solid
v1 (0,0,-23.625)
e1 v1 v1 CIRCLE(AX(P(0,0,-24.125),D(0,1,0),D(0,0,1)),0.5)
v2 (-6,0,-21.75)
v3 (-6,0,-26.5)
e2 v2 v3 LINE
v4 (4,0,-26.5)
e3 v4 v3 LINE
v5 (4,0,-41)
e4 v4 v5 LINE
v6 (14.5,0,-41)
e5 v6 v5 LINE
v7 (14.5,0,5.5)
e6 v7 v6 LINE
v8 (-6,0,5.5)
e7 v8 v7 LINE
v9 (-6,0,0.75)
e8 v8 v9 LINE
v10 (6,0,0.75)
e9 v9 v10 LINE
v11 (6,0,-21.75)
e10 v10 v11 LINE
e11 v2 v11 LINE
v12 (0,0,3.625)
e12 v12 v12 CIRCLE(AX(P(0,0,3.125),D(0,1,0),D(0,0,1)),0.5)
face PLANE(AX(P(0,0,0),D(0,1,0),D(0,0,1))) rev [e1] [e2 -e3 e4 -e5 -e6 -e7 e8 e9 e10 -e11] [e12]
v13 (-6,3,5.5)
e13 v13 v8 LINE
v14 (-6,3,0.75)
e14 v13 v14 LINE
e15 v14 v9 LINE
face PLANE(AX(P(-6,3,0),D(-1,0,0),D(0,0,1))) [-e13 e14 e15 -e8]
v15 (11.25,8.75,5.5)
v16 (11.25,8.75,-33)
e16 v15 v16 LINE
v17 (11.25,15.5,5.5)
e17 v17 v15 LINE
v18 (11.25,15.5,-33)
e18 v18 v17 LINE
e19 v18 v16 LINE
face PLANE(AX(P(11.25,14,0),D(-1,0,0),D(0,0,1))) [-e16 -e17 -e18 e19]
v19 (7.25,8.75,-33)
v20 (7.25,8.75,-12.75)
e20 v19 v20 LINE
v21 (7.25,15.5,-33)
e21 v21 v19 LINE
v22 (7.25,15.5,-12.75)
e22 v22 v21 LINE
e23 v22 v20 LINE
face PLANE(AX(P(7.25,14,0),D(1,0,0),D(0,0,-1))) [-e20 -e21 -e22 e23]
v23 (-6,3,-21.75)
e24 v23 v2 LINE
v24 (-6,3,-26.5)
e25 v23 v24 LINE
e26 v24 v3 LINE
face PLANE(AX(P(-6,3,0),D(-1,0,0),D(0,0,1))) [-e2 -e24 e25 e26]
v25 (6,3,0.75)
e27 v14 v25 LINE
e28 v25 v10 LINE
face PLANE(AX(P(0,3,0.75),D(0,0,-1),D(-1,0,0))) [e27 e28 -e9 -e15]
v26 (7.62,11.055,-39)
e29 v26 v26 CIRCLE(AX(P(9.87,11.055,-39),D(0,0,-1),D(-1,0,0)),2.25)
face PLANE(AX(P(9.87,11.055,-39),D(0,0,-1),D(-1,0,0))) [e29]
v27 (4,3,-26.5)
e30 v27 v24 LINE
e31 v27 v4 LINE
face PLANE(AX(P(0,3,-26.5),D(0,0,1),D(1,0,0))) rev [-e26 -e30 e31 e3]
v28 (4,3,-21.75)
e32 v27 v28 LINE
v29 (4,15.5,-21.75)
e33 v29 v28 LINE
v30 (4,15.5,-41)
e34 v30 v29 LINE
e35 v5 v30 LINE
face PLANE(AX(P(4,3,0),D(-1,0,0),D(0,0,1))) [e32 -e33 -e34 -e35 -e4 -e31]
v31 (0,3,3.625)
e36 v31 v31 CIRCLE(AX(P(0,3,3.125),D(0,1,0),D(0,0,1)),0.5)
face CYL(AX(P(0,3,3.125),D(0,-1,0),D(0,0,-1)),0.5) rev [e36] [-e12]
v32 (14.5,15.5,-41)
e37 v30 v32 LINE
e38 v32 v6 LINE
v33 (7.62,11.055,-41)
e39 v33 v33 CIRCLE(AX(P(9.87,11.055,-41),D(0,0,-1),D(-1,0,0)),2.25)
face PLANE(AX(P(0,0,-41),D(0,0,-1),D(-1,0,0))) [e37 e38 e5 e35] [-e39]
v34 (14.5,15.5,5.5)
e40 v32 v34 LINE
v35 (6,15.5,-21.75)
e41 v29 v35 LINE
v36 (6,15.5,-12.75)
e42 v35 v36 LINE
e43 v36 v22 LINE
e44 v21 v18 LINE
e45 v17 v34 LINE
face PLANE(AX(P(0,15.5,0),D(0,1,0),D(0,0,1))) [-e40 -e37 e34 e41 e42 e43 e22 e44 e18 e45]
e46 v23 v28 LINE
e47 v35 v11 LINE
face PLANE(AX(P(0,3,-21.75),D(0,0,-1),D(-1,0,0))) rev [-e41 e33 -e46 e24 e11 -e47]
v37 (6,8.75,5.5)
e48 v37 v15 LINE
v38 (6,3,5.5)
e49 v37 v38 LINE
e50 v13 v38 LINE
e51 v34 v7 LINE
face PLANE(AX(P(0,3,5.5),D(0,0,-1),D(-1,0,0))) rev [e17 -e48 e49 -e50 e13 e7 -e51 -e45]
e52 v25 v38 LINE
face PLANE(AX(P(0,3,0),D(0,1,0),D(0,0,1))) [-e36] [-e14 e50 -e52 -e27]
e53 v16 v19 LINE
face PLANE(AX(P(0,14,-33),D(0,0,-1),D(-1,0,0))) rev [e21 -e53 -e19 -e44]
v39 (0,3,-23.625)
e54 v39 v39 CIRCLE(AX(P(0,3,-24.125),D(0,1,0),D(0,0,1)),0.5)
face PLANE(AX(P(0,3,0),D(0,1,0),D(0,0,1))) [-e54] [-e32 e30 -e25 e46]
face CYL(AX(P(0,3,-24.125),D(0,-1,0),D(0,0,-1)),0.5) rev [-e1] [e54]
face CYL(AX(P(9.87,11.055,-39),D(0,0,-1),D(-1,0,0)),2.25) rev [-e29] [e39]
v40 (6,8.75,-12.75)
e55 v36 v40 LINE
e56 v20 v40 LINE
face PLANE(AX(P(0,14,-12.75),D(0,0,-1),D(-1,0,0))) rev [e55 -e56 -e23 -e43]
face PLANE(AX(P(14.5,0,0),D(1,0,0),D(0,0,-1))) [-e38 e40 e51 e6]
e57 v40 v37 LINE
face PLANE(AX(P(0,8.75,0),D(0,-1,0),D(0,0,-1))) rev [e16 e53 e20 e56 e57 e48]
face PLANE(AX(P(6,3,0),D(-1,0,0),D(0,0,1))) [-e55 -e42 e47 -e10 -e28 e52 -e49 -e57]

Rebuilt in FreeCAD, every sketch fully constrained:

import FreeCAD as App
import Part
import Sketcher
from FreeCAD import Vector
Q = App.Units.Quantity


def add_polygon(sketch, points):
    """Adds a closed chain of lines whose ends are joined by coincident constraints."""
    first, n = sketch.GeometryCount, len(points)
    for a, b in zip(points, points[1:] + points[:1]):
        sketch.addGeometry(Part.LineSegment(App.Vector(*a, 0), App.Vector(*b, 0)), False)
    for i in range(n):
        sketch.addConstraint(Sketcher.Constraint("Coincident", first + i, 2, first + (i + 1) % n, 1))

doc = App.newDocument("Part")
params = doc.addObject("Spreadsheet::Sheet", "Params")
for row, (alias, value) in enumerate([
    ("sketch1_diameter", "1 mm"),
    ("sketch1_width", "10 mm"),
    ("sketch1_width2", "12 mm"),
    ("sketch1_width3", "19.5 mm"),
    ("sketch1_height", "44.5 mm"),
    ("pad1_length", "3 mm"),
    ("sketch2_width", "2 mm"),
    ("sketch2_width2", "4 mm"),
    ("sketch2_height", "9 mm"),
    ("sketch2_width3", "9.5 mm"),
    ("sketch2_height2", "44.5 mm"),
    ("pad2_length", "11 mm"),
    ("sketch3_width", "4 mm"),
    ("sketch3_height", "38.5 mm"),
    ("sketch3_width2", "1.25 mm"),
    ("sketch3_height2", "20.25 mm"),
    ("pad3_length", "5.75 mm"),
    ("sketch4_diameter", "4 mm"),
    ("sketch4_diameter2", "2 mm"),
    ("pocket1_length", "4 mm"),
    ("sketch5_diameter", "4 mm"),
    ("sketch5_diameter2", "2 mm"),
    ("pad4_length", "4 mm"),
    ("sketch6_width", "2 mm"),
    ("sketch6_width2", "4 mm"),
    ("sketch6_height", "9 mm"),
    ("sketch6_width3", "9.5 mm"),
    ("sketch6_height2", "38.5 mm"),
    ("pad5_length", "1.5 mm"),
    ("sketch7_width", "15.5 mm"),
    ("sketch7_height", "44.5 mm"),
    ("pad6_length", "1 mm"),
    ("sketch8_width", "10.5 mm"),
    ("sketch8_height", "15.5 mm"),
    ("pad7_length", "2 mm"),
    ("sketch9_diameter", "4.5 mm"),
    ("pocket2_length", "2 mm"),
], start=1):
    params.set(f"A{row}", alias)
    params.set(f"B{row}", "=" + value)
    params.setAlias(f"B{row}", alias)

body = doc.addObject("PartDesign::Body", "Body")

# Sketch on XZ plane
sketch1 = doc.addObject("Sketcher::SketchObject", "Sketch")
body.addObject(sketch1)
sketch1.AttachmentSupport = (doc.XZ_Plane, [""])
sketch1.MapMode = "FlatFace"
add_polygon(sketch1, [(-6, 0.8), (-6, 5.5), (13.5, 5.5), (13.5, -39), (4, -39), (4, -26.5), (-6, -26.5), (-6, -21.8), (6, -21.8), (6, 0.8)])  # lines 0-9
sketch1.addGeometry(Part.Circle(Vector(0, 3.1, 0), Vector(0, 0, 1), 0.5), False)  # 10
sketch1.addGeometry(Part.Circle(Vector(0, -24.1, 0), Vector(0, 0, 1), 0.5), False)  # 11
sketch1.addConstraint(Sketcher.Constraint("Vertical", 0))
sketch1.addConstraint(Sketcher.Constraint("Horizontal", 1))
sketch1.addConstraint(Sketcher.Constraint("Vertical", 2))
sketch1.addConstraint(Sketcher.Constraint("Horizontal", 3))
sketch1.addConstraint(Sketcher.Constraint("Vertical", 4))
sketch1.addConstraint(Sketcher.Constraint("Horizontal", 5))
sketch1.addConstraint(Sketcher.Constraint("Vertical", 6))
sketch1.addConstraint(Sketcher.Constraint("Horizontal", 7))
sketch1.addConstraint(Sketcher.Constraint("Vertical", 8))
sketch1.addConstraint(Sketcher.Constraint("Horizontal", 9))
sketch1.addConstraint(Sketcher.Constraint("Equal", 10, 11))
sketch1.addConstraint(Sketcher.Constraint("PointOnObject", 10, 3, -2))
sketch1.addConstraint(Sketcher.Constraint("PointOnObject", 11, 3, -2))
sketch1.addConstraint(Sketcher.Constraint("Vertical", 0, 2, 5, 2))
sketch1.addConstraint(Sketcher.Constraint("Equal", 0, 6))
sketch1.addConstraint(Sketcher.Constraint("Diameter", 10, Q("1 mm")))
sketch1.addConstraint(Sketcher.Constraint("DistanceX", 5, 2, 5, 1, Q("10 mm")))
sketch1.addConstraint(Sketcher.Constraint("DistanceX", 7, 1, 7, 2, Q("12 mm")))
sketch1.addConstraint(Sketcher.Constraint("DistanceX", 1, 1, 1, 2, Q("19.5 mm")))
sketch1.addConstraint(Sketcher.Constraint("DistanceY", 2, 2, 2, 1, Q("44.5 mm")))
sketch1.addConstraint(Sketcher.Constraint("DistanceY", 4, 1, 4, 2, Q("12.5 mm")))
sketch1.addConstraint(Sketcher.Constraint("DistanceY", 8, 1, 8, 2, Q("22.5 mm")))
sketch1.addConstraint(Sketcher.Constraint("DistanceX", 0, 2, -1, 1, Q("6 mm")))
sketch1.addConstraint(Sketcher.Constraint("DistanceY", 2, 2, -1, 1, Q("39 mm")))
sketch1.addConstraint(Sketcher.Constraint("DistanceY", 11, 3, 10, 3, Q("27.25 mm")))
sketch1.addConstraint(Sketcher.Constraint("DistanceY", -1, 1, 10, 3, Q("3.125 mm")))
sketch1.setExpression("Constraints[25]", "Params.sketch1_diameter")
sketch1.setExpression("Constraints[26]", "Params.sketch1_width")
sketch1.setExpression("Constraints[27]", "Params.sketch1_width2")
sketch1.setExpression("Constraints[28]", "Params.sketch1_width3")
sketch1.setExpression("Constraints[29]", "Params.sketch1_height")
pad1 = doc.addObject("PartDesign::Pad", "Pad")
body.addObject(pad1)
pad1.Profile = sketch1
pad1.setExpression("Length", "Params.pad1_length")
pad1.Reversed = True

# Sketch on XZ plane
sketch2 = doc.addObject("Sketcher::SketchObject", "Sketch001")
body.addObject(sketch2)
sketch2.AttachmentSupport = (doc.XZ_Plane, [""])
sketch2.MapMode = "FlatFace"
sketch2.AttachmentOffset = App.Placement(Vector(0, 0, -3), App.Rotation())
add_polygon(sketch2, [(11.2, 5.5), (13.5, 5.5), (13.5, -39), (4, -39), (4, -21.8), (6, -21.8), (6, -12.8), (7.2, -12.8), (7.2, -33), (11.2, -33)])  # lines 0-9
sketch2.addConstraint(Sketcher.Constraint("Horizontal", 0))
sketch2.addConstraint(Sketcher.Constraint("Vertical", 1))
sketch2.addConstraint(Sketcher.Constraint("Horizontal", 2))
sketch2.addConstraint(Sketcher.Constraint("Vertical", 3))
sketch2.addConstraint(Sketcher.Constraint("Horizontal", 4))
sketch2.addConstraint(Sketcher.Constraint("Vertical", 5))
sketch2.addConstraint(Sketcher.Constraint("Horizontal", 6))
sketch2.addConstraint(Sketcher.Constraint("Vertical", 7))
sketch2.addConstraint(Sketcher.Constraint("Horizontal", 8))
sketch2.addConstraint(Sketcher.Constraint("Vertical", 9))
sketch2.addConstraint(Sketcher.Constraint("DistanceX", 4, 1, 4, 2, Q("2 mm")))
sketch2.addConstraint(Sketcher.Constraint("DistanceX", 8, 1, 8, 2, Q("4 mm")))
sketch2.addConstraint(Sketcher.Constraint("DistanceY", 5, 1, 5, 2, Q("9 mm")))
sketch2.addConstraint(Sketcher.Constraint("DistanceX", 2, 2, 2, 1, Q("9.5 mm")))
sketch2.addConstraint(Sketcher.Constraint("DistanceY", 1, 2, 1, 1, Q("44.5 mm")))
sketch2.addConstraint(Sketcher.Constraint("DistanceY", 9, 1, 9, 2, Q("38.5 mm")))
sketch2.addConstraint(Sketcher.Constraint("DistanceY", 1, 2, -1, 1, Q("39 mm")))
sketch2.addConstraint(Sketcher.Constraint("DistanceX", -1, 1, 2, 2, Q("4 mm")))
sketch2.addConstraint(Sketcher.Constraint("DistanceX", 0, 1, 0, 2, Q("2.25 mm")))
sketch2.addConstraint(Sketcher.Constraint("DistanceY", 3, 1, 3, 2, Q("17.25 mm")))
sketch2.setExpression("Constraints[20]", "Params.sketch2_width")
sketch2.setExpression("Constraints[21]", "Params.sketch2_width2")
sketch2.setExpression("Constraints[22]", "Params.sketch2_height")
sketch2.setExpression("Constraints[23]", "Params.sketch2_width3")
sketch2.setExpression("Constraints[24]", "Params.sketch2_height2")
pad2 = doc.addObject("PartDesign::Pad", "Pad001")
body.addObject(pad2)
pad2.Profile = sketch2
pad2.setExpression("Length", "Params.pad2_length")
pad2.Reversed = True

# Sketch on XZ plane
sketch3 = doc.addObject("Sketcher::SketchObject", "Sketch002")
body.addObject(sketch3)
sketch3.AttachmentSupport = (doc.XZ_Plane, [""])
sketch3.MapMode = "FlatFace"
sketch3.AttachmentOffset = App.Placement(Vector(0, 0, -3), App.Rotation())
add_polygon(sketch3, [(11.2, 5.5), (11.2, -33), (7.2, -33), (7.2, -12.8), (6, -12.8), (6, 5.5)])  # lines 0-5
sketch3.addConstraint(Sketcher.Constraint("Vertical", 0))
sketch3.addConstraint(Sketcher.Constraint("Horizontal", 1))
sketch3.addConstraint(Sketcher.Constraint("Vertical", 2))
sketch3.addConstraint(Sketcher.Constraint("Horizontal", 3))
sketch3.addConstraint(Sketcher.Constraint("Vertical", 4))
sketch3.addConstraint(Sketcher.Constraint("Horizontal", 5))
sketch3.addConstraint(Sketcher.Constraint("DistanceX", 1, 2, 1, 1, Q("4 mm")))
sketch3.addConstraint(Sketcher.Constraint("DistanceY", 0, 2, 0, 1, Q("38.5 mm")))
sketch3.addConstraint(Sketcher.Constraint("DistanceY", 0, 2, -1, 1, Q("33 mm")))
sketch3.addConstraint(Sketcher.Constraint("DistanceX", -1, 1, 3, 2, Q("6 mm")))
sketch3.addConstraint(Sketcher.Constraint("DistanceX", 3, 2, 3, 1, Q("1.25 mm")))
sketch3.addConstraint(Sketcher.Constraint("DistanceY", 2, 1, 2, 2, Q("20.25 mm")))
sketch3.setExpression("Constraints[12]", "Params.sketch3_width")
sketch3.setExpression("Constraints[13]", "Params.sketch3_height")
sketch3.setExpression("Constraints[16]", "Params.sketch3_width2")
sketch3.setExpression("Constraints[17]", "Params.sketch3_height2")
pad3 = doc.addObject("PartDesign::Pad", "Pad002")
body.addObject(pad3)
pad3.Profile = sketch3
pad3.setExpression("Length", "Params.pad3_length")
pad3.Reversed = True

# Sketch on XY plane
sketch4 = doc.addObject("Sketcher::SketchObject", "Sketch003")
body.addObject(sketch4)
sketch4.AttachmentSupport = (doc.XY_Plane, [""])
sketch4.MapMode = "FlatFace"
sketch4.AttachmentOffset = App.Placement(Vector(0, 0, -39), App.Rotation())
sketch4.addGeometry(Part.Circle(Vector(9.9, 11.1, 0), Vector(0, 0, 1), 2), False)
sketch4.addGeometry(Part.Circle(Vector(9.9, 5.6, 0), Vector(0, 0, 1), 1), False)
sketch4.addGeometry(Part.Circle(Vector(9.9, 2.1, 0), Vector(0, 0, 1), 1), False)
sketch4.addConstraint(Sketcher.Constraint("Equal", 1, 2))
sketch4.addConstraint(Sketcher.Constraint("Vertical", 0, 3, 1, 3))
sketch4.addConstraint(Sketcher.Constraint("Vertical", 1, 3, 2, 3))
sketch4.addConstraint(Sketcher.Constraint("Diameter", 0, Q("4 mm")))
sketch4.addConstraint(Sketcher.Constraint("Diameter", 1, Q("2 mm")))
sketch4.addConstraint(Sketcher.Constraint("DistanceY", 2, 3, 0, 3, Q("9 mm")))
sketch4.addConstraint(Sketcher.Constraint("DistanceY", 1, 3, 0, 3, Q("5.5 mm")))
sketch4.addConstraint(Sketcher.Constraint("DistanceX", -1, 1, 0, 3, Q("9.87 mm")))
sketch4.addConstraint(Sketcher.Constraint("DistanceY", -1, 1, 0, 3, Q("11.055 mm")))
sketch4.setExpression("Constraints[3]", "Params.sketch4_diameter")
sketch4.setExpression("Constraints[4]", "Params.sketch4_diameter2")
pocket1 = doc.addObject("PartDesign::Pocket", "Pocket")
body.addObject(pocket1)
pocket1.Profile = sketch4
pocket1.setExpression("Length", "Params.pocket1_length")
pocket1.Reversed = True

# Sketch on XY plane
sketch5 = doc.addObject("Sketcher::SketchObject", "Sketch004")
body.addObject(sketch5)
sketch5.AttachmentSupport = (doc.XY_Plane, [""])
sketch5.MapMode = "FlatFace"
sketch5.AttachmentOffset = App.Placement(Vector(0, 0, -39), App.Rotation())
sketch5.addGeometry(Part.Circle(Vector(9.9, 11.1, 0), Vector(0, 0, 1), 2), False)
sketch5.addGeometry(Part.Circle(Vector(9.9, 5.6, 0), Vector(0, 0, 1), 1), False)
sketch5.addGeometry(Part.Circle(Vector(9.9, 2.1, 0), Vector(0, 0, 1), 1), False)
sketch5.addConstraint(Sketcher.Constraint("Equal", 1, 2))
sketch5.addConstraint(Sketcher.Constraint("Vertical", 0, 3, 1, 3))
sketch5.addConstraint(Sketcher.Constraint("Vertical", 1, 3, 2, 3))
sketch5.addConstraint(Sketcher.Constraint("Diameter", 0, Q("4 mm")))
sketch5.addConstraint(Sketcher.Constraint("Diameter", 1, Q("2 mm")))
sketch5.addConstraint(Sketcher.Constraint("DistanceY", 2, 3, 0, 3, Q("9 mm")))
sketch5.addConstraint(Sketcher.Constraint("DistanceY", 1, 3, 0, 3, Q("5.5 mm")))
sketch5.addConstraint(Sketcher.Constraint("DistanceX", -1, 1, 0, 3, Q("9.87 mm")))
sketch5.addConstraint(Sketcher.Constraint("DistanceY", -1, 1, 0, 3, Q("11.055 mm")))
sketch5.setExpression("Constraints[3]", "Params.sketch5_diameter")
sketch5.setExpression("Constraints[4]", "Params.sketch5_diameter2")
pad4 = doc.addObject("PartDesign::Pad", "Pad003")
body.addObject(pad4)
pad4.Profile = sketch5
pad4.setExpression("Length", "Params.pad4_length")

# Sketch on XZ plane
sketch6 = doc.addObject("Sketcher::SketchObject", "Sketch005")
body.addObject(sketch6)
sketch6.AttachmentSupport = (doc.XZ_Plane, [""])
sketch6.MapMode = "FlatFace"
sketch6.AttachmentOffset = App.Placement(Vector(0, 0, -14), App.Rotation())
add_polygon(sketch6, [(4, -39), (4, -21.8), (6, -21.8), (6, -12.8), (7.2, -12.8), (7.2, -33), (11.2, -33), (11.2, 5.5), (13.5, 5.5), (13.5, -39)])  # lines 0-9
sketch6.addConstraint(Sketcher.Constraint("Vertical", 0))
sketch6.addConstraint(Sketcher.Constraint("Horizontal", 1))
sketch6.addConstraint(Sketcher.Constraint("Vertical", 2))
sketch6.addConstraint(Sketcher.Constraint("Horizontal", 3))
sketch6.addConstraint(Sketcher.Constraint("Vertical", 4))
sketch6.addConstraint(Sketcher.Constraint("Horizontal", 5))
sketch6.addConstraint(Sketcher.Constraint("Vertical", 6))
sketch6.addConstraint(Sketcher.Constraint("Horizontal", 7))
sketch6.addConstraint(Sketcher.Constraint("Vertical", 8))
sketch6.addConstraint(Sketcher.Constraint("Horizontal", 9))
sketch6.addConstraint(Sketcher.Constraint("DistanceX", 1, 1, 1, 2, Q("2 mm")))
sketch6.addConstraint(Sketcher.Constraint("DistanceX", 5, 1, 5, 2, Q("4 mm")))
sketch6.addConstraint(Sketcher.Constraint("DistanceY", 2, 1, 2, 2, Q("9 mm")))
sketch6.addConstraint(Sketcher.Constraint("DistanceX", 9, 2, 9, 1, Q("9.5 mm")))
sketch6.addConstraint(Sketcher.Constraint("DistanceY", 6, 1, 6, 2, Q("38.5 mm")))
sketch6.addConstraint(Sketcher.Constraint("DistanceY", 8, 2, 8, 1, Q("44.5 mm")))
sketch6.addConstraint(Sketcher.Constraint("DistanceX", -1, 1, 0, 2, Q("4 mm")))
sketch6.addConstraint(Sketcher.Constraint("DistanceY", 4, 2, -1, 1, Q("33 mm")))
sketch6.addConstraint(Sketcher.Constraint("DistanceX", 3, 1, 3, 2, Q("1.25 mm")))
sketch6.addConstraint(Sketcher.Constraint("DistanceY", 0, 1, 0, 2, Q("17.25 mm")))
sketch6.setExpression("Constraints[20]", "Params.sketch6_width")
sketch6.setExpression("Constraints[21]", "Params.sketch6_width2")
sketch6.setExpression("Constraints[22]", "Params.sketch6_height")
sketch6.setExpression("Constraints[23]", "Params.sketch6_width3")
sketch6.setExpression("Constraints[24]", "Params.sketch6_height2")
pad5 = doc.addObject("PartDesign::Pad", "Pad004")
body.addObject(pad5)
pad5.Profile = sketch6
pad5.setExpression("Length", "Params.pad5_length")
pad5.Reversed = True

# Sketch on YZ plane
sketch7 = doc.addObject("Sketcher::SketchObject", "Sketch006")
body.addObject(sketch7)
sketch7.AttachmentSupport = (doc.YZ_Plane, [""])
sketch7.MapMode = "FlatFace"
sketch7.AttachmentOffset = App.Placement(Vector(0, 0, 13.5), App.Rotation())
add_polygon(sketch7, [(16, 6), (0, 6), (0, -39), (16, -39)])  # lines 0-3
sketch7.addConstraint(Sketcher.Constraint("Horizontal", 0))
sketch7.addConstraint(Sketcher.Constraint("Vertical", 1))
sketch7.addConstraint(Sketcher.Constraint("Horizontal", 2))
sketch7.addConstraint(Sketcher.Constraint("Vertical", 3))
sketch7.addConstraint(Sketcher.Constraint("PointOnObject", 0, 2, -2))
sketch7.addConstraint(Sketcher.Constraint("DistanceX", 0, 2, 0, 1, Q("15.5 mm")))
sketch7.addConstraint(Sketcher.Constraint("DistanceY", 1, 2, 1, 1, Q("44.5 mm")))
sketch7.addConstraint(Sketcher.Constraint("DistanceY", 1, 2, -1, 1, Q("39 mm")))
sketch7.setExpression("Constraints[9]", "Params.sketch7_width")
sketch7.setExpression("Constraints[10]", "Params.sketch7_height")
pad6 = doc.addObject("PartDesign::Pad", "Pad005")
body.addObject(pad6)
pad6.Profile = sketch7
pad6.setExpression("Length", "Params.pad6_length")

# Sketch on XY plane
sketch8 = doc.addObject("Sketcher::SketchObject", "Sketch007")
body.addObject(sketch8)
sketch8.AttachmentSupport = (doc.XY_Plane, [""])
sketch8.MapMode = "FlatFace"
sketch8.AttachmentOffset = App.Placement(Vector(0, 0, -39), App.Rotation())
add_polygon(sketch8, [(14, 16), (14, 0), (4, 0), (4, 16)])  # lines 0-3
sketch8.addConstraint(Sketcher.Constraint("Vertical", 0))
sketch8.addConstraint(Sketcher.Constraint("Horizontal", 1))
sketch8.addConstraint(Sketcher.Constraint("Vertical", 2))
sketch8.addConstraint(Sketcher.Constraint("Horizontal", 3))
sketch8.addConstraint(Sketcher.Constraint("PointOnObject", 0, 2, -1))
sketch8.addConstraint(Sketcher.Constraint("DistanceX", 1, 2, 1, 1, Q("10.5 mm")))
sketch8.addConstraint(Sketcher.Constraint("DistanceY", 0, 2, 0, 1, Q("15.5 mm")))
sketch8.addConstraint(Sketcher.Constraint("DistanceX", -1, 1, 1, 2, Q("4 mm")))
sketch8.setExpression("Constraints[9]", "Params.sketch8_width")
sketch8.setExpression("Constraints[10]", "Params.sketch8_height")
pad7 = doc.addObject("PartDesign::Pad", "Pad006")
body.addObject(pad7)
pad7.Profile = sketch8
pad7.setExpression("Length", "Params.pad7_length")
pad7.Reversed = True

# Sketch on XY plane
sketch9 = doc.addObject("Sketcher::SketchObject", "Sketch008")
body.addObject(sketch9)
sketch9.AttachmentSupport = (doc.XY_Plane, [""])
sketch9.MapMode = "FlatFace"
sketch9.AttachmentOffset = App.Placement(Vector(0, 0, -41), App.Rotation())
sketch9.addGeometry(Part.Circle(Vector(9.9, 11.1, 0), Vector(0, 0, 1), 2.2), False)
sketch9.addConstraint(Sketcher.Constraint("Diameter", 0, Q("4.5 mm")))
sketch9.addConstraint(Sketcher.Constraint("DistanceX", -1, 1, 0, 3, Q("9.87 mm")))
sketch9.addConstraint(Sketcher.Constraint("DistanceY", -1, 1, 0, 3, Q("11.055 mm")))
sketch9.setExpression("Constraints[0]", "Params.sketch9_diameter")
pocket2 = doc.addObject("PartDesign::Pocket", "Pocket001")
body.addObject(pocket2)
pocket2.Profile = sketch9
pocket2.setExpression("Length", "Params.pocket2_length")
pocket2.Reversed = True

doc.recompute()
